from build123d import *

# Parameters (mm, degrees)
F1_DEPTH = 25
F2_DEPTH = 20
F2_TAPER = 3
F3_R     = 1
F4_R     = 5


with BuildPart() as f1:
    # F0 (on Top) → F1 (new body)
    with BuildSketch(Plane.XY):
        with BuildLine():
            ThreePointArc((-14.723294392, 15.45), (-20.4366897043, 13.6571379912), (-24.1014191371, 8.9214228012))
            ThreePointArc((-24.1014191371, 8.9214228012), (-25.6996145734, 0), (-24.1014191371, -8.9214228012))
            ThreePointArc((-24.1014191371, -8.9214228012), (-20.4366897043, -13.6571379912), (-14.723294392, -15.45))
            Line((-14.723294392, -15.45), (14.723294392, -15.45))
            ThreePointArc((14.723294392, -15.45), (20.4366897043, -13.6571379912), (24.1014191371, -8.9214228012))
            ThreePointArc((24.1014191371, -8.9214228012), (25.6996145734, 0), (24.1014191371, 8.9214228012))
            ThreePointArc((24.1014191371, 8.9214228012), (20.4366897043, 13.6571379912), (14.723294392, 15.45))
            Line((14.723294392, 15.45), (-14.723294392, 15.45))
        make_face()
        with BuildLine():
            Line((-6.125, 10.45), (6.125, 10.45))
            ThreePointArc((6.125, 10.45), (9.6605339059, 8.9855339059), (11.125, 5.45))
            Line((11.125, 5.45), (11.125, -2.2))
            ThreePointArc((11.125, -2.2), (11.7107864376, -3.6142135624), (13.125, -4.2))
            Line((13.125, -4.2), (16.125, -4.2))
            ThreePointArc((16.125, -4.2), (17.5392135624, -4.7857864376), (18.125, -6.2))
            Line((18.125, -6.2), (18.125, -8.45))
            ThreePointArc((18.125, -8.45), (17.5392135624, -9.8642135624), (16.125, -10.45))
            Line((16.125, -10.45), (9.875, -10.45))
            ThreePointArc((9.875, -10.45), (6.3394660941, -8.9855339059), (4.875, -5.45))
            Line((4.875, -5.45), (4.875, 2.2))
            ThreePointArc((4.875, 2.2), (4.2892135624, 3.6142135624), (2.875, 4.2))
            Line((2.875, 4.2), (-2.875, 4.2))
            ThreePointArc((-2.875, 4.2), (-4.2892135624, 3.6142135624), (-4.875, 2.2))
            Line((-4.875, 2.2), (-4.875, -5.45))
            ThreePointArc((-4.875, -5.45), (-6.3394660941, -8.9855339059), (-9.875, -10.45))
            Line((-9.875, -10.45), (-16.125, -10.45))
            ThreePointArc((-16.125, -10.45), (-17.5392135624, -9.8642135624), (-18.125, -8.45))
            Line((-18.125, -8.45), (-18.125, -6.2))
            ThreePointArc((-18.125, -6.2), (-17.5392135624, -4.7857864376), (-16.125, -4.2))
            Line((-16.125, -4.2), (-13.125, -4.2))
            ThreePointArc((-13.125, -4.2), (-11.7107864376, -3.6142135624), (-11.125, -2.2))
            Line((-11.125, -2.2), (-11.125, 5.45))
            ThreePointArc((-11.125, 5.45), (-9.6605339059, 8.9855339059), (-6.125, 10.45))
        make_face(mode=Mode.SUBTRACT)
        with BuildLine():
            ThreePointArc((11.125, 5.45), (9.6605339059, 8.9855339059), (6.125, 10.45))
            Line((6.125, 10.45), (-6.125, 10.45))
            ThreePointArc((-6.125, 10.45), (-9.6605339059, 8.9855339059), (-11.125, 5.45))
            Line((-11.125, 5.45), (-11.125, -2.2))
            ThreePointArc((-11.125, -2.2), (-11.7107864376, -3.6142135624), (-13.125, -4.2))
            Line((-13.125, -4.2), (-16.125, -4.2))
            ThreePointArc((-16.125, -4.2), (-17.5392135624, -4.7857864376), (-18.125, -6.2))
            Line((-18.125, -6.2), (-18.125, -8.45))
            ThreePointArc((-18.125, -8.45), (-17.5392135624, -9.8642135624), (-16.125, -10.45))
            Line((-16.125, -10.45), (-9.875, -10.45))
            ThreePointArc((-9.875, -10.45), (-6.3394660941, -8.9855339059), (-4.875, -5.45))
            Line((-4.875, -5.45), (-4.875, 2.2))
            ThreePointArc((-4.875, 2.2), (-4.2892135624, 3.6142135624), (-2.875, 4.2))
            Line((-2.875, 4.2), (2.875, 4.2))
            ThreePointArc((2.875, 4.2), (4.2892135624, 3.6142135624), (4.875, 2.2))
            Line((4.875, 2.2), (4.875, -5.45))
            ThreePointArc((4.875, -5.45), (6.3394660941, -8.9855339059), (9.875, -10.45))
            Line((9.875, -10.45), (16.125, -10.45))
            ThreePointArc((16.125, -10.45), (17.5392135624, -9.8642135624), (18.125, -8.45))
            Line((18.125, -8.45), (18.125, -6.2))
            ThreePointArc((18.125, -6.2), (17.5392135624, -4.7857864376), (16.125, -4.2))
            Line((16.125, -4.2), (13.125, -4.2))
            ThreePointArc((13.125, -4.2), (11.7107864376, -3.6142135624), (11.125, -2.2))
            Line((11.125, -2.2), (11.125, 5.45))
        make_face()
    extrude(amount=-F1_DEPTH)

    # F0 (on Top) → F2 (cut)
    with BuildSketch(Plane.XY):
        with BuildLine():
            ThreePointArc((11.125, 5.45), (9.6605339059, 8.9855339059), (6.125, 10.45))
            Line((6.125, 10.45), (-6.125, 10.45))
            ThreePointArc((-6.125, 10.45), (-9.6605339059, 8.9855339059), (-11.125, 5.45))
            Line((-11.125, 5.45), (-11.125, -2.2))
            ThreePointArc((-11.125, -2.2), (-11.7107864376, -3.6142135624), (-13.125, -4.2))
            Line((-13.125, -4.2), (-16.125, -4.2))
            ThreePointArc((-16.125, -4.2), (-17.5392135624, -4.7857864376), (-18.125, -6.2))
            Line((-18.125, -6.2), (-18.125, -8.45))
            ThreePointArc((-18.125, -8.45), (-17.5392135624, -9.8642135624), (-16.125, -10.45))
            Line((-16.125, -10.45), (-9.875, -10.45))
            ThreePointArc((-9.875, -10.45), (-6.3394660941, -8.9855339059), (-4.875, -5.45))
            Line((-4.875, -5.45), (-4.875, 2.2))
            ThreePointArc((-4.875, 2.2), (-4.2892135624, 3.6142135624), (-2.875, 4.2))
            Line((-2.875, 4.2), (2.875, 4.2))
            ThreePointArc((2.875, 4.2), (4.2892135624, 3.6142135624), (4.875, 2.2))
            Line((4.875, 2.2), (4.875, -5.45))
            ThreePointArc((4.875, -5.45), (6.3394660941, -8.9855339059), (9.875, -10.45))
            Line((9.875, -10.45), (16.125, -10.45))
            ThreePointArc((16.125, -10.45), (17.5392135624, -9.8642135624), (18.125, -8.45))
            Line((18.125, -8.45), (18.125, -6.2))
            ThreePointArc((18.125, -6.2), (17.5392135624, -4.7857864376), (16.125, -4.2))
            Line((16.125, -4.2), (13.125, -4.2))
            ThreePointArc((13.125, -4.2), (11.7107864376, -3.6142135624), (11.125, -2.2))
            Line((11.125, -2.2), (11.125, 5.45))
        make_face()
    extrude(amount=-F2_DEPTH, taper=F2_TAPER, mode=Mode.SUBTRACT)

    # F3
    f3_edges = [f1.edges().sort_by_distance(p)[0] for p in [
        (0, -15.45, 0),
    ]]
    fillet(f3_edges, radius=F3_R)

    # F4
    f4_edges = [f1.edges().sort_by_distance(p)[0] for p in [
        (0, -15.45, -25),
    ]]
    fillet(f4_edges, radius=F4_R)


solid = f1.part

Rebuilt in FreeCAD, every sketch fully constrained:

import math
import FreeCAD as App
import Part
import Sketcher

V = App.Vector
Q = App.Units.Quantity


def edges_at(feature, points):
    """Names of the edges that pass closest to the given points."""
    edges = feature.Shape.Edges
    near = lambda p: min(range(len(edges)), key=lambda i: edges[i].distToShape(Part.Vertex(*p))[0])
    return sorted({f"Edge{near(p) + 1}" for p in points})

doc = App.newDocument("Part")
body = doc.addObject("PartDesign::Body", "Body")

sketch1 = doc.addObject("Sketcher::SketchObject", "Sketch")
body.addObject(sketch1)
sketch1.AttachmentSupport = (doc.XY_Plane, [""])
sketch1.MapMode = "FlatFace"
sketch1.addGeometry(Part.ArcOfCircle(Part.Circle(V(-15, 5, 0), V(0, 0, 1), 10), math.radians(90), math.radians(160)), False)
sketch1.addGeometry(Part.ArcOfCircle(Part.Circle(V(0, 0, 0), V(0, 0, 1), 26), math.radians(160), math.radians(200)), False)
sketch1.addGeometry(Part.ArcOfCircle(Part.Circle(V(-15, -5, 0), V(0, 0, 1), 10), math.radians(-160), math.radians(-90)), False)
sketch1.addGeometry(Part.LineSegment(V(-15, -15, 0), V(15, -15, 0)), False)
sketch1.addGeometry(Part.ArcOfCircle(Part.Circle(V(15, -5, 0), V(0, 0, 1), 10), math.radians(-90), math.radians(-20)), False)
sketch1.addGeometry(Part.ArcOfCircle(Part.Circle(V(0, 0, 0), V(0, 0, 1), 26), math.radians(-20), math.radians(20)), False)
sketch1.addGeometry(Part.ArcOfCircle(Part.Circle(V(15, 5, 0), V(0, 0, 1), 10), math.radians(20), math.radians(90)), False)
sketch1.addGeometry(Part.LineSegment(V(15, 15, 0), V(-15, 15, 0)), False)
sketch1.addConstraint(Sketcher.Constraint("Tangent", 0, 2, 1, 1))
sketch1.addConstraint(Sketcher.Constraint("Tangent", 1, 2, 2, 1))
sketch1.addConstraint(Sketcher.Constraint("Tangent", 2, 2, 3, 1))
sketch1.addConstraint(Sketcher.Constraint("Tangent", 3, 2, 4, 1))
sketch1.addConstraint(Sketcher.Constraint("Tangent", 4, 2, 5, 1))
sketch1.addConstraint(Sketcher.Constraint("Tangent", 5, 2, 6, 1))
sketch1.addConstraint(Sketcher.Constraint("Tangent", 6, 2, 7, 1))
sketch1.addConstraint(Sketcher.Constraint("Tangent", 7, 2, 0, 1))
sketch1.addConstraint(Sketcher.Constraint("Horizontal", 3))
sketch1.addConstraint(Sketcher.Constraint("Horizontal", 7))
sketch1.addConstraint(Sketcher.Constraint("Coincident", 1, 3, -1, 1))
sketch1.addConstraint(Sketcher.Constraint("Coincident", 5, 3, -1, 1))
sketch1.addConstraint(Sketcher.Constraint("Equal", 0, 2))
sketch1.addConstraint(Sketcher.Constraint("Equal", 2, 4))
sketch1.addConstraint(Sketcher.Constraint("Equal", 1, 5))
sketch1.addConstraint(Sketcher.Constraint("Equal", 4, 6))
sketch1.addConstraint(Sketcher.Constraint("Vertical", 0, 3, 2, 3))
sketch1.addConstraint(Sketcher.Constraint("Radius", 0, Q("10 mm")))
sketch1.addConstraint(Sketcher.Constraint("DistanceY", 2, 3, 0, 3, Q("10.9 mm")))
sketch1.addConstraint(Sketcher.Constraint("Radius", 1, Q("25.699615 mm")))
pad1 = doc.addObject("PartDesign::Pad", "Pad")
body.addObject(pad1)
pad1.Profile = sketch1
pad1.Length = 25
pad1.Reversed = True

sketch2 = doc.addObject("Sketcher::SketchObject", "Sketch001")
body.addObject(sketch2)
sketch2.AttachmentSupport = (doc.XY_Plane, [""])
sketch2.MapMode = "FlatFace"
sketch2.addGeometry(Part.ArcOfCircle(Part.Circle(V(6.1, 5.5, 0), V(0, 0, 1), 5), math.radians(0), math.radians(90)), False)
sketch2.addGeometry(Part.LineSegment(V(6.1, 10.4, 0), V(-6.1, 10.4, 0)), False)
sketch2.addGeometry(Part.ArcOfCircle(Part.Circle(V(-6.1, 5.5, 0), V(0, 0, 1), 5), math.radians(90), math.radians(180)), False)
sketch2.addGeometry(Part.LineSegment(V(-11.1, 5.5, 0), V(-11.1, -2.2, 0)), False)
sketch2.addGeometry(Part.ArcOfCircle(Part.Circle(V(-13.1, -2.2, 0), V(0, 0, 1), 2), math.radians(-90), math.radians(0)), False)
sketch2.addGeometry(Part.LineSegment(V(-13.1, -4.2, 0), V(-16.1, -4.2, 0)), False)
sketch2.addGeometry(Part.ArcOfCircle(Part.Circle(V(-16.1, -6.2, 0), V(0, 0, 1), 2), math.radians(90), math.radians(180)), False)
sketch2.addGeometry(Part.LineSegment(V(-18.1, -6.2, 0), V(-18.1, -8.4, 0)), False)
sketch2.addGeometry(Part.ArcOfCircle(Part.Circle(V(-16.1, -8.4, 0), V(0, 0, 1), 2), math.radians(180), math.radians(270)), False)
sketch2.addGeometry(Part.LineSegment(V(-16.1, -10.4, 0), V(-9.9, -10.4, 0)), False)
sketch2.addGeometry(Part.ArcOfCircle(Part.Circle(V(-9.9, -5.5, 0), V(0, 0, 1), 5), math.radians(-90), math.radians(0)), False)
sketch2.addGeometry(Part.LineSegment(V(-4.9, -5.5, 0), V(-4.9, 2.2, 0)), False)
sketch2.addGeometry(Part.ArcOfCircle(Part.Circle(V(-2.9, 2.2, 0), V(0, 0, 1), 2), math.radians(90), math.radians(180)), False)
sketch2.addGeometry(Part.LineSegment(V(-2.9, 4.2, 0), V(2.9, 4.2, 0)), False)
sketch2.addGeometry(Part.ArcOfCircle(Part.Circle(V(2.9, 2.2, 0), V(0, 0, 1), 2), math.radians(0), math.radians(90)), False)
sketch2.addGeometry(Part.LineSegment(V(4.9, 2.2, 0), V(4.9, -5.5, 0)), False)
sketch2.addGeometry(Part.ArcOfCircle(Part.Circle(V(9.9, -5.5, 0), V(0, 0, 1), 5), math.radians(180), math.radians(270)), False)
sketch2.addGeometry(Part.LineSegment(V(9.9, -10.4, 0), V(16.1, -10.4, 0)), False)
sketch2.addGeometry(Part.ArcOfCircle(Part.Circle(V(16.1, -8.4, 0), V(0, 0, 1), 2), math.radians(-90), math.radians(0)), False)
sketch2.addGeometry(Part.LineSegment(V(18.1, -8.4, 0), V(18.1, -6.2, 0)), False)
sketch2.addGeometry(Part.ArcOfCircle(Part.Circle(V(16.1, -6.2, 0), V(0, 0, 1), 2), math.radians(0), math.radians(90)), False)
sketch2.addGeometry(Part.LineSegment(V(16.1, -4.2, 0), V(13.1, -4.2, 0)), False)
sketch2.addGeometry(Part.ArcOfCircle(Part.Circle(V(13.1, -2.2, 0), V(0, 0, 1), 2), math.radians(180), math.radians(270)), False)
sketch2.addGeometry(Part.LineSegment(V(11.1, -2.2, 0), V(11.1, 5.5, 0)), False)
sketch2.addConstraint(Sketcher.Constraint("Tangent", 0, 2, 1, 1))
sketch2.addConstraint(Sketcher.Constraint("Tangent", 1, 2, 2, 1))
sketch2.addConstraint(Sketcher.Constraint("Tangent", 2, 2, 3, 1))
sketch2.addConstraint(Sketcher.Constraint("Tangent", 3, 2, 4, 2))
sketch2.addConstraint(Sketcher.Constraint("Tangent", 4, 1, 5, 1))
sketch2.addConstraint(Sketcher.Constraint("Tangent", 5, 2, 6, 1))
sketch2.addConstraint(Sketcher.Constraint("Tangent", 6, 2, 7, 1))
sketch2.addConstraint(Sketcher.Constraint("Tangent", 7, 2, 8, 1))
sketch2.addConstraint(Sketcher.Constraint("Tangent", 8, 2, 9, 1))
sketch2.addConstraint(Sketcher.Constraint("Tangent", 9, 2, 10, 1))
sketch2.addConstraint(Sketcher.Constraint("Tangent", 10, 2, 11, 1))
sketch2.addConstraint(Sketcher.Constraint("Tangent", 11, 2, 12, 2))
sketch2.addConstraint(Sketcher.Constraint("Tangent", 12, 1, 13, 1))
sketch2.addConstraint(Sketcher.Constraint("Tangent", 13, 2, 14, 2))
sketch2.addConstraint(Sketcher.Constraint("Tangent", 14, 1, 15, 1))
sketch2.addConstraint(Sketcher.Constraint("Tangent", 15, 2, 16, 1))
sketch2.addConstraint(Sketcher.Constraint("Tangent", 16, 2, 17, 1))
sketch2.addConstraint(Sketcher.Constraint("Tangent", 17, 2, 18, 1))
sketch2.addConstraint(Sketcher.Constraint("Tangent", 18, 2, 19, 1))
sketch2.addConstraint(Sketcher.Constraint("Tangent", 19, 2, 20, 1))
sketch2.addConstraint(Sketcher.Constraint("Tangent", 20, 2, 21, 1))
sketch2.addConstraint(Sketcher.Constraint("Tangent", 21, 2, 22, 2))
sketch2.addConstraint(Sketcher.Constraint("Tangent", 22, 1, 23, 1))
sketch2.addConstraint(Sketcher.Constraint("Tangent", 23, 2, 0, 1))
sketch2.addConstraint(Sketcher.Constraint("Horizontal", 1))
sketch2.addConstraint(Sketcher.Constraint("Vertical", 3))
sketch2.addConstraint(Sketcher.Constraint("Horizontal", 5))
sketch2.addConstraint(Sketcher.Constraint("Vertical", 7))
sketch2.addConstraint(Sketcher.Constraint("Horizontal", 9))
sketch2.addConstraint(Sketcher.Constraint("Vertical", 11))
sketch2.addConstraint(Sketcher.Constraint("Horizontal", 13))
sketch2.addConstraint(Sketcher.Constraint("Vertical", 15))
sketch2.addConstraint(Sketcher.Constraint("Horizontal", 17))
sketch2.addConstraint(Sketcher.Constraint("Vertical", 19))
sketch2.addConstraint(Sketcher.Constraint("Horizontal", 21))
sketch2.addConstraint(Sketcher.Constraint("Vertical", 23))
sketch2.addConstraint(Sketcher.Constraint("Equal", 0, 2))
sketch2.addConstraint(Sketcher.Constraint("Equal", 4, 6))
sketch2.addConstraint(Sketcher.Constraint("Equal", 6, 8))
sketch2.addConstraint(Sketcher.Constraint("Equal", 2, 10))
sketch2.addConstraint(Sketcher.Constraint("Equal", 8, 12))
sketch2.addConstraint(Sketcher.Constraint("Equal", 12, 14))
sketch2.addConstraint(Sketcher.Constraint("Equal", 10, 16))
sketch2.addConstraint(Sketcher.Constraint("Equal", 14, 18))
sketch2.addConstraint(Sketcher.Constraint("Equal", 18, 20))
sketch2.addConstraint(Sketcher.Constraint("Equal", 20, 22))
sketch2.addConstraint(Sketcher.Constraint("Symmetric", 10, 3, 16, 3, -2))
sketch2.addConstraint(Sketcher.Constraint("Symmetric", 6, 3, 20, 3, -2))
sketch2.addConstraint(Sketcher.Constraint("Equal", 5, 21))
sketch2.addConstraint(Sketcher.Constraint("Equal", 3, 11))
sketch2.addConstraint(Sketcher.Constraint("Radius", 0, Q("5 mm")))
sketch2.addConstraint(Sketcher.Constraint("Radius", 4, Q("2 mm")))
sketch2.addConstraint(Sketcher.Constraint("DistanceX", 5, 2, 5, 1, Q("3 mm")))
sketch2.addConstraint(Sketcher.Constraint("DistanceX", 10, 3, 0, 3, Q("16 mm")))
sketch2.addConstraint(Sketcher.Constraint("DistanceX", 1, 2, 1, 1, Q("12.25 mm")))
sketch2.addConstraint(Sketcher.Constraint("DistanceY", 3, 2, 3, 1, Q("7.65 mm")))
sketch2.addConstraint(Sketcher.Constraint("DistanceY", 7, 2, 7, 1, Q("2.25 mm")))
sketch2.addConstraint(Sketcher.Constraint("DistanceY", 4, 3, -1, 1, Q("2.2 mm")))
pocket1 = doc.addObject("PartDesign::Pocket", "Pocket")
body.addObject(pocket1)
pocket1.Profile = sketch2
pocket1.Length = 20
pocket1.TaperAngle = -3
doc.recompute()

fillet = doc.addObject("PartDesign::Fillet", "Fillet")
body.addObject(fillet)
fillet.Base = (pocket1, edges_at(pocket1, [(0, -15.45, 0)]))
fillet.Radius = 1
doc.recompute()

fillet2 = doc.addObject("PartDesign::Fillet", "Fillet001")
body.addObject(fillet2)
fillet2.Base = (fillet, edges_at(fillet, [(0, -15.45, -25)]))
fillet2.Radius = 5

doc.recompute()
